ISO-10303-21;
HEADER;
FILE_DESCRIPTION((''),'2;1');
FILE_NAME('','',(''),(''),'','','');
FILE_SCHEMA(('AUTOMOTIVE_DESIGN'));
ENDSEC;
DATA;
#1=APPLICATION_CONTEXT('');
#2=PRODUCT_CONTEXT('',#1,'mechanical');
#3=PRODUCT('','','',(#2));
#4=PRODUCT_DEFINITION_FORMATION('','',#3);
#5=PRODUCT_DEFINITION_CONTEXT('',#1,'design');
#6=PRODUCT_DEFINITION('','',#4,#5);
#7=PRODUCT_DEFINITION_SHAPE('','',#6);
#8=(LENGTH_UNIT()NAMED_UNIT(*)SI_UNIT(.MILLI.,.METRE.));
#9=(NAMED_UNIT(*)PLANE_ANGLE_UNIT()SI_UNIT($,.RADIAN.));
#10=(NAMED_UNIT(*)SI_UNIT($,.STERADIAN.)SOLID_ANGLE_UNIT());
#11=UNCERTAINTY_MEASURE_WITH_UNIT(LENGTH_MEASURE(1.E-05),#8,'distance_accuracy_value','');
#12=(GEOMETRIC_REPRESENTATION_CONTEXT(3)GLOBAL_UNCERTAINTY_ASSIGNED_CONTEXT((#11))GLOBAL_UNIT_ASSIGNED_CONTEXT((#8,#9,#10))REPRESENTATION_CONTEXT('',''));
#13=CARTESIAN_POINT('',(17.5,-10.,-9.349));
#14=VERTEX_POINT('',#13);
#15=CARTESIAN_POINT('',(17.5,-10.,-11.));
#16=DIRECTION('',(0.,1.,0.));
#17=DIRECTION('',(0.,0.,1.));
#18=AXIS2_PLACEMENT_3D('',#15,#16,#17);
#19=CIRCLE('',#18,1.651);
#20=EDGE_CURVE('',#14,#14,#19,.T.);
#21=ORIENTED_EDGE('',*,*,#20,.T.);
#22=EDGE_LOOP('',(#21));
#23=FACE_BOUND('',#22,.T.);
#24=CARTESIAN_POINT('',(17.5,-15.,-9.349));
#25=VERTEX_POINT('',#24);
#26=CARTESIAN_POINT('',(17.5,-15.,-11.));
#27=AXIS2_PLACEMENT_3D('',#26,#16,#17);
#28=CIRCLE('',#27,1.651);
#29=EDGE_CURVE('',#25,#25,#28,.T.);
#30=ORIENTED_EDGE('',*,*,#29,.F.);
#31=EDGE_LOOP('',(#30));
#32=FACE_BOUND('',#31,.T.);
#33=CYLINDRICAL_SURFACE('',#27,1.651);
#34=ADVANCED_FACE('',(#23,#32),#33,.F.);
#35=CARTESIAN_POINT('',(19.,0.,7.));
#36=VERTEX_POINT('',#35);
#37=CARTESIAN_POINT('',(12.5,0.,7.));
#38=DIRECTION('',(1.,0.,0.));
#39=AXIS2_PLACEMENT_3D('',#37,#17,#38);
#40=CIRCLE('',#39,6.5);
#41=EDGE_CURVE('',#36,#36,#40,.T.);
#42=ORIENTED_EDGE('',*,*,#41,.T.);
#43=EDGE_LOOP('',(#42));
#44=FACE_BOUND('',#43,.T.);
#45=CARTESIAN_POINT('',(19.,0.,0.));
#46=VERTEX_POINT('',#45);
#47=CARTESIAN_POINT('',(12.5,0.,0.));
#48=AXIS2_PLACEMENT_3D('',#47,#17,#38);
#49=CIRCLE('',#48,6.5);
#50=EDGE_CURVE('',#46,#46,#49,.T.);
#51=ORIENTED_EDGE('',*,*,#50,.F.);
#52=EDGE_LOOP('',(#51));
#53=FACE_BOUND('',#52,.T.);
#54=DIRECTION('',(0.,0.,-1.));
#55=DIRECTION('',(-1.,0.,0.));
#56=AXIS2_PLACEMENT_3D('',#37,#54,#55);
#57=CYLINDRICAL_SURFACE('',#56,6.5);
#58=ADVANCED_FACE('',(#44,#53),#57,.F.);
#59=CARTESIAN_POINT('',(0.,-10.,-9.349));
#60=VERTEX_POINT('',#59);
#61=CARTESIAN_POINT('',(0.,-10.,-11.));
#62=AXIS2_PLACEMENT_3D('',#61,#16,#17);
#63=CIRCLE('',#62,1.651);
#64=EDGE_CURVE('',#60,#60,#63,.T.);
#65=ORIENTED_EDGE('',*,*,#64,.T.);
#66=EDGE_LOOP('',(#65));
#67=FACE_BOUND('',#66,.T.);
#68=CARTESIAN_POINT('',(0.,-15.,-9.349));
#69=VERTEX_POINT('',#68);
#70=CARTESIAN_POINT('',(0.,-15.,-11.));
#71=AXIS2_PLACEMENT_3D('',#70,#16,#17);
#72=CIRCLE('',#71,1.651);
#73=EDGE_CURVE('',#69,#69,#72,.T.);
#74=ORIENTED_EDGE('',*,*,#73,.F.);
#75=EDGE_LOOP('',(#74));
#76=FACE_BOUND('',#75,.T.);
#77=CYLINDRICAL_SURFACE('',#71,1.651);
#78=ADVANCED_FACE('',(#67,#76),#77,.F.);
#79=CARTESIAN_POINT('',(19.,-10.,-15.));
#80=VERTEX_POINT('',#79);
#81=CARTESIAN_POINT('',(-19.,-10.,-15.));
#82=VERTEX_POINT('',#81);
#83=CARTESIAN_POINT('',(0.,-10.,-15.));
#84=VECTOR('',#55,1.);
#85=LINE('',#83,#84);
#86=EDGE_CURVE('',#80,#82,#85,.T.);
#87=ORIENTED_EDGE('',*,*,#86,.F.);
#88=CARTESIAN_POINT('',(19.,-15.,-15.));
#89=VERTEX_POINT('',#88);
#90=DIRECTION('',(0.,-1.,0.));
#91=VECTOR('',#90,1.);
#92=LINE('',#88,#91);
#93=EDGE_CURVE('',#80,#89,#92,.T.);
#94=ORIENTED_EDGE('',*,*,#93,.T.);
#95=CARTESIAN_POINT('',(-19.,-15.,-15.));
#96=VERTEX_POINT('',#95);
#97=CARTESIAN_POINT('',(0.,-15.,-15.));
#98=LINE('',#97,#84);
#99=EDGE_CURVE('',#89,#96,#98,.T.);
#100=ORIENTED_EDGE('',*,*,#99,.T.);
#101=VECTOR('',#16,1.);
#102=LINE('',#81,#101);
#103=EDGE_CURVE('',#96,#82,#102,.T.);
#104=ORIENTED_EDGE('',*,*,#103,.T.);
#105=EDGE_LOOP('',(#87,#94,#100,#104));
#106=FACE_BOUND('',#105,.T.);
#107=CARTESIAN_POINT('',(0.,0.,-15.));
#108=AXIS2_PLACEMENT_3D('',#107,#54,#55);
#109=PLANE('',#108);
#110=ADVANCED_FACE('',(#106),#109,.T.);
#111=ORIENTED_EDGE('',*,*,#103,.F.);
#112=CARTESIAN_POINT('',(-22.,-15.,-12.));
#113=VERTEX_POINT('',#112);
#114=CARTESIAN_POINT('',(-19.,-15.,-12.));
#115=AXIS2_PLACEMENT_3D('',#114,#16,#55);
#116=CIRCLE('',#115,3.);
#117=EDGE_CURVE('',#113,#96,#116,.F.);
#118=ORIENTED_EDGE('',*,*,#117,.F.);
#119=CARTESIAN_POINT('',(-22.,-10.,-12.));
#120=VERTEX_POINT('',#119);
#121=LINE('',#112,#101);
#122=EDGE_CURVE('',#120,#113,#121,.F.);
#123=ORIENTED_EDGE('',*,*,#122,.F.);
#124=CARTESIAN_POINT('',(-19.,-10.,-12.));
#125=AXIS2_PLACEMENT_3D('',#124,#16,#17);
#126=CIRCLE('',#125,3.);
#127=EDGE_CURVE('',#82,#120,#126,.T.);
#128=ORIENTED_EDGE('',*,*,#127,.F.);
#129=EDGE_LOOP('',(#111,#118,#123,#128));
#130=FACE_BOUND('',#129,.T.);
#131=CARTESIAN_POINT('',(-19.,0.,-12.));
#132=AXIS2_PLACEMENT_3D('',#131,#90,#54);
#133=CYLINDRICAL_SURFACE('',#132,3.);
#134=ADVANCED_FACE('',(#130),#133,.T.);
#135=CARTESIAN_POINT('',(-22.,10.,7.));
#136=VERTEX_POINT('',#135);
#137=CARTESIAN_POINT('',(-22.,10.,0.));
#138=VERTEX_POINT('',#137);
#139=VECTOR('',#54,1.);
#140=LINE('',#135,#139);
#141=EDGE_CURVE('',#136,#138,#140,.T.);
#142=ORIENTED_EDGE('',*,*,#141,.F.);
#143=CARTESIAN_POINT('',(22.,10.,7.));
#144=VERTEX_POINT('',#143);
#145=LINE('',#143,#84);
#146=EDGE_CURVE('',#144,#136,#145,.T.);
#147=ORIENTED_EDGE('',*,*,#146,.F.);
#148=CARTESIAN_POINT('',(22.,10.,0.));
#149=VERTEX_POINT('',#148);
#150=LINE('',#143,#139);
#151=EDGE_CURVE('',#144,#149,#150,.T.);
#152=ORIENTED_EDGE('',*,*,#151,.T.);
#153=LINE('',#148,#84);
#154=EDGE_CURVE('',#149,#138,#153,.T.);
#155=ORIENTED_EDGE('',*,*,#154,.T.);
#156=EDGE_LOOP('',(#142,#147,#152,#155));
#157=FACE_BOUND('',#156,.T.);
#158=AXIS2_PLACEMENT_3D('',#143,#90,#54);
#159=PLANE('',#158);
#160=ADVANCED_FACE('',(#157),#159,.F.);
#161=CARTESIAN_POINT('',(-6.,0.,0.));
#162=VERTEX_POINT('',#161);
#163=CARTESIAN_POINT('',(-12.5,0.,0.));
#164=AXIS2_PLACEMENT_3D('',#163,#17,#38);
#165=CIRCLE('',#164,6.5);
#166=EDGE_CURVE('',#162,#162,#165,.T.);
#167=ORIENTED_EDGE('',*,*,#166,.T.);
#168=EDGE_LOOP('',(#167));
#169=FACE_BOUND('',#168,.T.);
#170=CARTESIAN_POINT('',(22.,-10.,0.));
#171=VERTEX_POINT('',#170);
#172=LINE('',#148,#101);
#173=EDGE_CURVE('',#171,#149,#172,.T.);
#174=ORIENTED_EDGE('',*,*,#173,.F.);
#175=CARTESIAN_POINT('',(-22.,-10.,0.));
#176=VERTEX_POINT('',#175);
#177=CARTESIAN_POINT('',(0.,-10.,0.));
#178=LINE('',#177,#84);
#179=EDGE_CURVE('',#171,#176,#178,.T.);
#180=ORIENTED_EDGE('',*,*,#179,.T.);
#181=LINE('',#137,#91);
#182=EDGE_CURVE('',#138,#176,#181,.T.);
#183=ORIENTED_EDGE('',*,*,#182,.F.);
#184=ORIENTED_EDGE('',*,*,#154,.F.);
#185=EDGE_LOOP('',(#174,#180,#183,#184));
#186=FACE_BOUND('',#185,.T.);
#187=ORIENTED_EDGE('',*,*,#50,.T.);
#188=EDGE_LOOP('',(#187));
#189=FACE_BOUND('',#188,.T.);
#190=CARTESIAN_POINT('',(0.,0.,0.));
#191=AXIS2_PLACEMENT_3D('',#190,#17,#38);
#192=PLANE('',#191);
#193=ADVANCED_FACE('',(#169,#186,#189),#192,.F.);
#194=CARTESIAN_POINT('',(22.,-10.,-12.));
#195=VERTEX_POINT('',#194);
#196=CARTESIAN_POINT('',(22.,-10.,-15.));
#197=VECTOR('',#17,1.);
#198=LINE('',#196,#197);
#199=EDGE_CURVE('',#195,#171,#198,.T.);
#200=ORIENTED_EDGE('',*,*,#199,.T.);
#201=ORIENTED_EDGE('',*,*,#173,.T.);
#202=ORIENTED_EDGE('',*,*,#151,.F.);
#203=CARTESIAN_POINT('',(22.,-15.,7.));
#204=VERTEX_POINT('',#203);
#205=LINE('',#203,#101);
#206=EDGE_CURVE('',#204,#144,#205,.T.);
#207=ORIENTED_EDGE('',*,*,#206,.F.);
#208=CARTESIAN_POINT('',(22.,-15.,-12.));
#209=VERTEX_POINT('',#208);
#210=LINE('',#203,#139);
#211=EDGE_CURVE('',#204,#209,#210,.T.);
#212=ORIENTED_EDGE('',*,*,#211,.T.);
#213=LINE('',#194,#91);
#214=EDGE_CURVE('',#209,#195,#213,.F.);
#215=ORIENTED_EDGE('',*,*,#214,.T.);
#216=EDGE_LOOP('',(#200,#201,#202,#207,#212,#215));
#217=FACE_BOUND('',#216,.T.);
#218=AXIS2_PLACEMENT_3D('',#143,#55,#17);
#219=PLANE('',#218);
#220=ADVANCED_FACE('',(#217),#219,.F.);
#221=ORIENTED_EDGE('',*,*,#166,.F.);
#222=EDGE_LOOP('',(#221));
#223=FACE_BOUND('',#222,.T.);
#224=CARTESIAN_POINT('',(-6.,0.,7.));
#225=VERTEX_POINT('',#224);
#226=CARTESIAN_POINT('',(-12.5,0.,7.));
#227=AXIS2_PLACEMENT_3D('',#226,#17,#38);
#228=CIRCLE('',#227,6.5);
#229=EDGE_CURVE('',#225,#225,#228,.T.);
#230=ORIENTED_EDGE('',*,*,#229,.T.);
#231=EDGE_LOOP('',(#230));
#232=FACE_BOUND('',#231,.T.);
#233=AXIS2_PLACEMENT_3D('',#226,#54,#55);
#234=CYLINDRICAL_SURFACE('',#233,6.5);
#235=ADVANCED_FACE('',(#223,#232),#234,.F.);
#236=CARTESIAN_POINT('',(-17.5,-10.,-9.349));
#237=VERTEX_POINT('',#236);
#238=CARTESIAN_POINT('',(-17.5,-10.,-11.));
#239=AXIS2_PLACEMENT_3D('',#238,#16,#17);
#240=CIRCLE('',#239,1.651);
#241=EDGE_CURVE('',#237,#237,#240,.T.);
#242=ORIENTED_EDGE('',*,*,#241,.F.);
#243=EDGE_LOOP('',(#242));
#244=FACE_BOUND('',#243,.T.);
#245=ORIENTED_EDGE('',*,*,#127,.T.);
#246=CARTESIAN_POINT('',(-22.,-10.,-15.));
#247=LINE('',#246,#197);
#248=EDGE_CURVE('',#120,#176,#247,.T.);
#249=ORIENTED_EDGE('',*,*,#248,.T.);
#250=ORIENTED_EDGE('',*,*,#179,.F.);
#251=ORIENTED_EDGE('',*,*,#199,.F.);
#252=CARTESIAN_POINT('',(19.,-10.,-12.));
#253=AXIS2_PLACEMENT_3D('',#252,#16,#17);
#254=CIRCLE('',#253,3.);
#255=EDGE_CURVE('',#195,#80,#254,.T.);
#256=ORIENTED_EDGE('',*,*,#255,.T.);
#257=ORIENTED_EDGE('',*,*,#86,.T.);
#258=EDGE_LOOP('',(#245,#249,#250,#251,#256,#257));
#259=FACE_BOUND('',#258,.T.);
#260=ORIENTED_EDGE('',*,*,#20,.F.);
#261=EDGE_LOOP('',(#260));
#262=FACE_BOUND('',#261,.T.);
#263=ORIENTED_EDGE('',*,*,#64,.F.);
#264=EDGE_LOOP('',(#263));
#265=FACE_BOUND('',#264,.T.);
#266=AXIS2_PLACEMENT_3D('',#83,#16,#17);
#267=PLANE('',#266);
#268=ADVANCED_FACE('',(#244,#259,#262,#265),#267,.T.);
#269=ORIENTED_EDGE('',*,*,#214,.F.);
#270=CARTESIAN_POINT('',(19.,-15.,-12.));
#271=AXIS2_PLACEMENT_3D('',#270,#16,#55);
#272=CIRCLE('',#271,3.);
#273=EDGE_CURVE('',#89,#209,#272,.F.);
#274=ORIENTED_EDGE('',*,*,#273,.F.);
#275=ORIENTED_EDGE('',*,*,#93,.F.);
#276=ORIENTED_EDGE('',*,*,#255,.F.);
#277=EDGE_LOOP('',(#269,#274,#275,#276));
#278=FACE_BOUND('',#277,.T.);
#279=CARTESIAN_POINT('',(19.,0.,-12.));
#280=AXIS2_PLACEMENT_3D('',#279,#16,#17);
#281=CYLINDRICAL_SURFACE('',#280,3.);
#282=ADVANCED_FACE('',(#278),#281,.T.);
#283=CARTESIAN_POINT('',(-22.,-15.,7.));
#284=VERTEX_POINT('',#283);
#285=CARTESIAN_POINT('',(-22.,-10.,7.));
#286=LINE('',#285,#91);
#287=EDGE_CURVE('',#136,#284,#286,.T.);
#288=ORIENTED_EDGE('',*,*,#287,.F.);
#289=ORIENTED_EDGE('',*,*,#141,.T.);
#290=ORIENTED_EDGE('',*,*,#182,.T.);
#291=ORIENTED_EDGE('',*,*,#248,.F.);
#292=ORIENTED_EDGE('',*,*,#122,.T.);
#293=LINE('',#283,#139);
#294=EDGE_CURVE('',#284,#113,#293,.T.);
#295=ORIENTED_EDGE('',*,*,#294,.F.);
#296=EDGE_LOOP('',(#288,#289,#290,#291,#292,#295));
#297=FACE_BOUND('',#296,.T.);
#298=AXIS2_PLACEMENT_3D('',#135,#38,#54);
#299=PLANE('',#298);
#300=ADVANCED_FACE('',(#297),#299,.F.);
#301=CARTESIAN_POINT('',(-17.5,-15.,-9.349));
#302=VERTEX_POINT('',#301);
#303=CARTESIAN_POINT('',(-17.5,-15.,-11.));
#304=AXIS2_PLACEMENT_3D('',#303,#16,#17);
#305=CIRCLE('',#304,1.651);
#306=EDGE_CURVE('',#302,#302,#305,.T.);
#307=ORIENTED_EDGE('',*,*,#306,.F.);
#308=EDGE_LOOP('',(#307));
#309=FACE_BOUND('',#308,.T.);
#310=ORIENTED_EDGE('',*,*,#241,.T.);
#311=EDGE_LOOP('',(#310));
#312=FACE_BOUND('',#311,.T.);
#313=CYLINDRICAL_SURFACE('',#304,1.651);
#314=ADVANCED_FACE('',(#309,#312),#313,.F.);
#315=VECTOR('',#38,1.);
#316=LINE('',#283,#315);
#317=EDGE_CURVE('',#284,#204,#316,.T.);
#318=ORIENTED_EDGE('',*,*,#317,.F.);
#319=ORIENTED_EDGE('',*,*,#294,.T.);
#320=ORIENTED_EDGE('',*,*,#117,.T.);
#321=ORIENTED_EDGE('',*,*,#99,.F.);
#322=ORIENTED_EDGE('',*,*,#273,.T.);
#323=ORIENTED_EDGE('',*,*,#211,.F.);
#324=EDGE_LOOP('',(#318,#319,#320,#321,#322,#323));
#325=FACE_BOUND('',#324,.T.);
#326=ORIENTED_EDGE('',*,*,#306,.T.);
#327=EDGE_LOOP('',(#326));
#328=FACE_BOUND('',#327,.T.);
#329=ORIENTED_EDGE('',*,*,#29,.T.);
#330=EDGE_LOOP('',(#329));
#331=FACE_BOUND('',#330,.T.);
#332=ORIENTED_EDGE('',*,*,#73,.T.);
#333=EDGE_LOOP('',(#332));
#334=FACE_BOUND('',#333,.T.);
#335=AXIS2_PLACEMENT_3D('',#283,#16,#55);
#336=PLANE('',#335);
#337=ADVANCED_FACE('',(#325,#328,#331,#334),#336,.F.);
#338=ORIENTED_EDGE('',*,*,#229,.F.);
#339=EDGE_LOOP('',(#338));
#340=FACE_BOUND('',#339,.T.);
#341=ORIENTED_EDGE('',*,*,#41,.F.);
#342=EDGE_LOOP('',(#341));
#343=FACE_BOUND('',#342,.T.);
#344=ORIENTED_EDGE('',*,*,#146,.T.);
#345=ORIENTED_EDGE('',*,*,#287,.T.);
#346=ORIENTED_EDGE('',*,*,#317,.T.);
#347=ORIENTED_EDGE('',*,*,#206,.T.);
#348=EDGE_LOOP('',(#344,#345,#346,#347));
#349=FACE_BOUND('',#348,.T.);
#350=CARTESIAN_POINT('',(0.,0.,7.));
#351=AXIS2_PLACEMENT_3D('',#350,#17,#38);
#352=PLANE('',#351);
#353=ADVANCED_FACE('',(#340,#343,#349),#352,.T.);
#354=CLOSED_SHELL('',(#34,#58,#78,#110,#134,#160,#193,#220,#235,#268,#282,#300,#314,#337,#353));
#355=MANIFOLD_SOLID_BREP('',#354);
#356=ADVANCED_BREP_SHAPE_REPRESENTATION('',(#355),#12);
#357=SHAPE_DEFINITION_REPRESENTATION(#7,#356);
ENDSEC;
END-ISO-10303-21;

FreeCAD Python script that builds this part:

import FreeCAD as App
import Part
import Sketcher


def edges_at(feature, points):
    """Names of the edges that pass closest to the given points."""
    edges = feature.Shape.Edges
    near = lambda p: min(range(len(edges)), key=lambda i: edges[i].distToShape(Part.Vertex(*p))[0])
    return sorted({f"Edge{near(p) + 1}" for p in points})


def add_polygon(sketch, points):
    """Adds a closed chain of lines whose ends are joined by coincident constraints."""
    first, n = sketch.GeometryCount, len(points)
    for a, b in zip(points, points[1:] + points[:1]):
        sketch.addGeometry(Part.LineSegment(App.Vector(*a, 0), App.Vector(*b, 0)), False)
    for i in range(n):
        sketch.addConstraint(Sketcher.Constraint("Coincident", first + i, 2, first + (i + 1) % n, 1))

doc = App.newDocument("Part")
body = doc.addObject("PartDesign::Body", "Body")

# Sketch on XY plane
sketch1 = body.newObject("Sketcher::SketchObject", "Sketch")
sketch1.AttachmentSupport = (doc.getObject("XY_Plane"), [""])
sketch1.MapMode = "FlatFace"
add_polygon(sketch1, [(22, 10), (-22, 10), (-22, -15), (22, -15)])  # lines 0-3
sketch1.addGeometry(Part.Circle(App.Vector(-12, 0, 0), App.Vector(0, 0, 1), 6), False)  # 4
sketch1.addGeometry(Part.Circle(App.Vector(12, 0, 0), App.Vector(0, 0, 1), 6), False)  # 5
sketch1.addConstraint(Sketcher.Constraint("Horizontal", 0))
sketch1.addConstraint(Sketcher.Constraint("Vertical", 1))
sketch1.addConstraint(Sketcher.Constraint("Horizontal", 2))
sketch1.addConstraint(Sketcher.Constraint("Vertical", 3))
sketch1.addConstraint(Sketcher.Constraint("Equal", 4, 5))
sketch1.addConstraint(Sketcher.Constraint("Symmetric", 4, 3, 5, 3, -1, 1))
sketch1.addConstraint(Sketcher.Constraint("PointOnObject", 4, 3, -1))
sketch1.addConstraint(Sketcher.Constraint("Diameter", 4, 13.0))
sketch1.addConstraint(Sketcher.Constraint("DistanceX", 0, 2, 0, 1, 44.0))
sketch1.addConstraint(Sketcher.Constraint("DistanceY", 1, 2, 1, 1, 25.0))
sketch1.addConstraint(Sketcher.Constraint("DistanceX", 0, 2, -1, 1, 22.0))
sketch1.addConstraint(Sketcher.Constraint("DistanceY", -1, 1, 0, 2, 10.0))
sketch1.addConstraint(Sketcher.Constraint("DistanceX", 4, 3, 5, 3, 25.0))
pad1 = body.newObject("PartDesign::Pad", "Pad")
pad1.Profile = sketch1
pad1.Length = 7

# Sketch on XY plane
sketch2 = body.newObject("Sketcher::SketchObject", "Sketch001")
sketch2.AttachmentSupport = (doc.getObject("XY_Plane"), [""])
sketch2.MapMode = "FlatFace"
add_polygon(sketch2, [(22, -10), (22, -15), (-22, -15), (-22, -10)])  # lines 0-3
sketch2.addConstraint(Sketcher.Constraint("Vertical", 0))
sketch2.addConstraint(Sketcher.Constraint("Horizontal", 1))
sketch2.addConstraint(Sketcher.Constraint("Vertical", 2))
sketch2.addConstraint(Sketcher.Constraint("Horizontal", 3))
sketch2.addConstraint(Sketcher.Constraint("DistanceX", 1, 2, 1, 1, 44.0))
sketch2.addConstraint(Sketcher.Constraint("DistanceY", 0, 2, 0, 1, 5.0))
sketch2.addConstraint(Sketcher.Constraint("DistanceX", -1, 1, 0, 2, 22.0))
sketch2.addConstraint(Sketcher.Constraint("DistanceY", 0, 2, -1, 1, 15.0))
pad2 = body.newObject("PartDesign::Pad", "Pad001")
pad2.Profile = sketch2
pad2.Length = 15
pad2.Reversed = True

# Sketch on XZ plane
sketch3 = body.newObject("Sketcher::SketchObject", "Sketch002")
sketch3.AttachmentSupport = (doc.getObject("XZ_Plane"), [""])
sketch3.MapMode = "FlatFace"
sketch3.AttachmentOffset = App.Placement(App.Vector(0, 0, 10), App.Rotation())
sketch3.addGeometry(Part.Circle(App.Vector(17.5, -11, 0), App.Vector(0, 0, 1), 1.7), False)
sketch3.addGeometry(Part.Circle(App.Vector(0, -11, 0), App.Vector(0, 0, 1), 1.7), False)
sketch3.addGeometry(Part.Circle(App.Vector(-17.5, -11, 0), App.Vector(0, 0, 1), 1.7), False)
sketch3.addConstraint(Sketcher.Constraint("Equal", 0, 1))
sketch3.addConstraint(Sketcher.Constraint("Equal", 1, 2))
sketch3.addConstraint(Sketcher.Constraint("Symmetric", 0, 3, 2, 3, -2))
sketch3.addConstraint(Sketcher.Constraint("PointOnObject", 1, 3, -2))
sketch3.addConstraint(Sketcher.Constraint("Horizontal", 0, 3, 1, 3))
sketch3.addConstraint(Sketcher.Constraint("Diameter", 0, 3.302))
sketch3.addConstraint(Sketcher.Constraint("DistanceY", 0, 3, -1, 1, 11.0))
sketch3.addConstraint(Sketcher.Constraint("DistanceX", 2, 3, 0, 3, 35.0))
pocket1 = body.newObject("PartDesign::Pocket", "Pocket")
pocket1.Profile = sketch3
pocket1.Type = "ThroughAll"
pocket1.Reversed = True
doc.recompute()

fillet = body.newObject("PartDesign::Fillet", "Fillet")
fillet.Base = (pocket1, edges_at(pocket1, [(-22, -12.5, -15), (22, -12.5, -15)]))
fillet.Radius = 3

doc.recompute()
